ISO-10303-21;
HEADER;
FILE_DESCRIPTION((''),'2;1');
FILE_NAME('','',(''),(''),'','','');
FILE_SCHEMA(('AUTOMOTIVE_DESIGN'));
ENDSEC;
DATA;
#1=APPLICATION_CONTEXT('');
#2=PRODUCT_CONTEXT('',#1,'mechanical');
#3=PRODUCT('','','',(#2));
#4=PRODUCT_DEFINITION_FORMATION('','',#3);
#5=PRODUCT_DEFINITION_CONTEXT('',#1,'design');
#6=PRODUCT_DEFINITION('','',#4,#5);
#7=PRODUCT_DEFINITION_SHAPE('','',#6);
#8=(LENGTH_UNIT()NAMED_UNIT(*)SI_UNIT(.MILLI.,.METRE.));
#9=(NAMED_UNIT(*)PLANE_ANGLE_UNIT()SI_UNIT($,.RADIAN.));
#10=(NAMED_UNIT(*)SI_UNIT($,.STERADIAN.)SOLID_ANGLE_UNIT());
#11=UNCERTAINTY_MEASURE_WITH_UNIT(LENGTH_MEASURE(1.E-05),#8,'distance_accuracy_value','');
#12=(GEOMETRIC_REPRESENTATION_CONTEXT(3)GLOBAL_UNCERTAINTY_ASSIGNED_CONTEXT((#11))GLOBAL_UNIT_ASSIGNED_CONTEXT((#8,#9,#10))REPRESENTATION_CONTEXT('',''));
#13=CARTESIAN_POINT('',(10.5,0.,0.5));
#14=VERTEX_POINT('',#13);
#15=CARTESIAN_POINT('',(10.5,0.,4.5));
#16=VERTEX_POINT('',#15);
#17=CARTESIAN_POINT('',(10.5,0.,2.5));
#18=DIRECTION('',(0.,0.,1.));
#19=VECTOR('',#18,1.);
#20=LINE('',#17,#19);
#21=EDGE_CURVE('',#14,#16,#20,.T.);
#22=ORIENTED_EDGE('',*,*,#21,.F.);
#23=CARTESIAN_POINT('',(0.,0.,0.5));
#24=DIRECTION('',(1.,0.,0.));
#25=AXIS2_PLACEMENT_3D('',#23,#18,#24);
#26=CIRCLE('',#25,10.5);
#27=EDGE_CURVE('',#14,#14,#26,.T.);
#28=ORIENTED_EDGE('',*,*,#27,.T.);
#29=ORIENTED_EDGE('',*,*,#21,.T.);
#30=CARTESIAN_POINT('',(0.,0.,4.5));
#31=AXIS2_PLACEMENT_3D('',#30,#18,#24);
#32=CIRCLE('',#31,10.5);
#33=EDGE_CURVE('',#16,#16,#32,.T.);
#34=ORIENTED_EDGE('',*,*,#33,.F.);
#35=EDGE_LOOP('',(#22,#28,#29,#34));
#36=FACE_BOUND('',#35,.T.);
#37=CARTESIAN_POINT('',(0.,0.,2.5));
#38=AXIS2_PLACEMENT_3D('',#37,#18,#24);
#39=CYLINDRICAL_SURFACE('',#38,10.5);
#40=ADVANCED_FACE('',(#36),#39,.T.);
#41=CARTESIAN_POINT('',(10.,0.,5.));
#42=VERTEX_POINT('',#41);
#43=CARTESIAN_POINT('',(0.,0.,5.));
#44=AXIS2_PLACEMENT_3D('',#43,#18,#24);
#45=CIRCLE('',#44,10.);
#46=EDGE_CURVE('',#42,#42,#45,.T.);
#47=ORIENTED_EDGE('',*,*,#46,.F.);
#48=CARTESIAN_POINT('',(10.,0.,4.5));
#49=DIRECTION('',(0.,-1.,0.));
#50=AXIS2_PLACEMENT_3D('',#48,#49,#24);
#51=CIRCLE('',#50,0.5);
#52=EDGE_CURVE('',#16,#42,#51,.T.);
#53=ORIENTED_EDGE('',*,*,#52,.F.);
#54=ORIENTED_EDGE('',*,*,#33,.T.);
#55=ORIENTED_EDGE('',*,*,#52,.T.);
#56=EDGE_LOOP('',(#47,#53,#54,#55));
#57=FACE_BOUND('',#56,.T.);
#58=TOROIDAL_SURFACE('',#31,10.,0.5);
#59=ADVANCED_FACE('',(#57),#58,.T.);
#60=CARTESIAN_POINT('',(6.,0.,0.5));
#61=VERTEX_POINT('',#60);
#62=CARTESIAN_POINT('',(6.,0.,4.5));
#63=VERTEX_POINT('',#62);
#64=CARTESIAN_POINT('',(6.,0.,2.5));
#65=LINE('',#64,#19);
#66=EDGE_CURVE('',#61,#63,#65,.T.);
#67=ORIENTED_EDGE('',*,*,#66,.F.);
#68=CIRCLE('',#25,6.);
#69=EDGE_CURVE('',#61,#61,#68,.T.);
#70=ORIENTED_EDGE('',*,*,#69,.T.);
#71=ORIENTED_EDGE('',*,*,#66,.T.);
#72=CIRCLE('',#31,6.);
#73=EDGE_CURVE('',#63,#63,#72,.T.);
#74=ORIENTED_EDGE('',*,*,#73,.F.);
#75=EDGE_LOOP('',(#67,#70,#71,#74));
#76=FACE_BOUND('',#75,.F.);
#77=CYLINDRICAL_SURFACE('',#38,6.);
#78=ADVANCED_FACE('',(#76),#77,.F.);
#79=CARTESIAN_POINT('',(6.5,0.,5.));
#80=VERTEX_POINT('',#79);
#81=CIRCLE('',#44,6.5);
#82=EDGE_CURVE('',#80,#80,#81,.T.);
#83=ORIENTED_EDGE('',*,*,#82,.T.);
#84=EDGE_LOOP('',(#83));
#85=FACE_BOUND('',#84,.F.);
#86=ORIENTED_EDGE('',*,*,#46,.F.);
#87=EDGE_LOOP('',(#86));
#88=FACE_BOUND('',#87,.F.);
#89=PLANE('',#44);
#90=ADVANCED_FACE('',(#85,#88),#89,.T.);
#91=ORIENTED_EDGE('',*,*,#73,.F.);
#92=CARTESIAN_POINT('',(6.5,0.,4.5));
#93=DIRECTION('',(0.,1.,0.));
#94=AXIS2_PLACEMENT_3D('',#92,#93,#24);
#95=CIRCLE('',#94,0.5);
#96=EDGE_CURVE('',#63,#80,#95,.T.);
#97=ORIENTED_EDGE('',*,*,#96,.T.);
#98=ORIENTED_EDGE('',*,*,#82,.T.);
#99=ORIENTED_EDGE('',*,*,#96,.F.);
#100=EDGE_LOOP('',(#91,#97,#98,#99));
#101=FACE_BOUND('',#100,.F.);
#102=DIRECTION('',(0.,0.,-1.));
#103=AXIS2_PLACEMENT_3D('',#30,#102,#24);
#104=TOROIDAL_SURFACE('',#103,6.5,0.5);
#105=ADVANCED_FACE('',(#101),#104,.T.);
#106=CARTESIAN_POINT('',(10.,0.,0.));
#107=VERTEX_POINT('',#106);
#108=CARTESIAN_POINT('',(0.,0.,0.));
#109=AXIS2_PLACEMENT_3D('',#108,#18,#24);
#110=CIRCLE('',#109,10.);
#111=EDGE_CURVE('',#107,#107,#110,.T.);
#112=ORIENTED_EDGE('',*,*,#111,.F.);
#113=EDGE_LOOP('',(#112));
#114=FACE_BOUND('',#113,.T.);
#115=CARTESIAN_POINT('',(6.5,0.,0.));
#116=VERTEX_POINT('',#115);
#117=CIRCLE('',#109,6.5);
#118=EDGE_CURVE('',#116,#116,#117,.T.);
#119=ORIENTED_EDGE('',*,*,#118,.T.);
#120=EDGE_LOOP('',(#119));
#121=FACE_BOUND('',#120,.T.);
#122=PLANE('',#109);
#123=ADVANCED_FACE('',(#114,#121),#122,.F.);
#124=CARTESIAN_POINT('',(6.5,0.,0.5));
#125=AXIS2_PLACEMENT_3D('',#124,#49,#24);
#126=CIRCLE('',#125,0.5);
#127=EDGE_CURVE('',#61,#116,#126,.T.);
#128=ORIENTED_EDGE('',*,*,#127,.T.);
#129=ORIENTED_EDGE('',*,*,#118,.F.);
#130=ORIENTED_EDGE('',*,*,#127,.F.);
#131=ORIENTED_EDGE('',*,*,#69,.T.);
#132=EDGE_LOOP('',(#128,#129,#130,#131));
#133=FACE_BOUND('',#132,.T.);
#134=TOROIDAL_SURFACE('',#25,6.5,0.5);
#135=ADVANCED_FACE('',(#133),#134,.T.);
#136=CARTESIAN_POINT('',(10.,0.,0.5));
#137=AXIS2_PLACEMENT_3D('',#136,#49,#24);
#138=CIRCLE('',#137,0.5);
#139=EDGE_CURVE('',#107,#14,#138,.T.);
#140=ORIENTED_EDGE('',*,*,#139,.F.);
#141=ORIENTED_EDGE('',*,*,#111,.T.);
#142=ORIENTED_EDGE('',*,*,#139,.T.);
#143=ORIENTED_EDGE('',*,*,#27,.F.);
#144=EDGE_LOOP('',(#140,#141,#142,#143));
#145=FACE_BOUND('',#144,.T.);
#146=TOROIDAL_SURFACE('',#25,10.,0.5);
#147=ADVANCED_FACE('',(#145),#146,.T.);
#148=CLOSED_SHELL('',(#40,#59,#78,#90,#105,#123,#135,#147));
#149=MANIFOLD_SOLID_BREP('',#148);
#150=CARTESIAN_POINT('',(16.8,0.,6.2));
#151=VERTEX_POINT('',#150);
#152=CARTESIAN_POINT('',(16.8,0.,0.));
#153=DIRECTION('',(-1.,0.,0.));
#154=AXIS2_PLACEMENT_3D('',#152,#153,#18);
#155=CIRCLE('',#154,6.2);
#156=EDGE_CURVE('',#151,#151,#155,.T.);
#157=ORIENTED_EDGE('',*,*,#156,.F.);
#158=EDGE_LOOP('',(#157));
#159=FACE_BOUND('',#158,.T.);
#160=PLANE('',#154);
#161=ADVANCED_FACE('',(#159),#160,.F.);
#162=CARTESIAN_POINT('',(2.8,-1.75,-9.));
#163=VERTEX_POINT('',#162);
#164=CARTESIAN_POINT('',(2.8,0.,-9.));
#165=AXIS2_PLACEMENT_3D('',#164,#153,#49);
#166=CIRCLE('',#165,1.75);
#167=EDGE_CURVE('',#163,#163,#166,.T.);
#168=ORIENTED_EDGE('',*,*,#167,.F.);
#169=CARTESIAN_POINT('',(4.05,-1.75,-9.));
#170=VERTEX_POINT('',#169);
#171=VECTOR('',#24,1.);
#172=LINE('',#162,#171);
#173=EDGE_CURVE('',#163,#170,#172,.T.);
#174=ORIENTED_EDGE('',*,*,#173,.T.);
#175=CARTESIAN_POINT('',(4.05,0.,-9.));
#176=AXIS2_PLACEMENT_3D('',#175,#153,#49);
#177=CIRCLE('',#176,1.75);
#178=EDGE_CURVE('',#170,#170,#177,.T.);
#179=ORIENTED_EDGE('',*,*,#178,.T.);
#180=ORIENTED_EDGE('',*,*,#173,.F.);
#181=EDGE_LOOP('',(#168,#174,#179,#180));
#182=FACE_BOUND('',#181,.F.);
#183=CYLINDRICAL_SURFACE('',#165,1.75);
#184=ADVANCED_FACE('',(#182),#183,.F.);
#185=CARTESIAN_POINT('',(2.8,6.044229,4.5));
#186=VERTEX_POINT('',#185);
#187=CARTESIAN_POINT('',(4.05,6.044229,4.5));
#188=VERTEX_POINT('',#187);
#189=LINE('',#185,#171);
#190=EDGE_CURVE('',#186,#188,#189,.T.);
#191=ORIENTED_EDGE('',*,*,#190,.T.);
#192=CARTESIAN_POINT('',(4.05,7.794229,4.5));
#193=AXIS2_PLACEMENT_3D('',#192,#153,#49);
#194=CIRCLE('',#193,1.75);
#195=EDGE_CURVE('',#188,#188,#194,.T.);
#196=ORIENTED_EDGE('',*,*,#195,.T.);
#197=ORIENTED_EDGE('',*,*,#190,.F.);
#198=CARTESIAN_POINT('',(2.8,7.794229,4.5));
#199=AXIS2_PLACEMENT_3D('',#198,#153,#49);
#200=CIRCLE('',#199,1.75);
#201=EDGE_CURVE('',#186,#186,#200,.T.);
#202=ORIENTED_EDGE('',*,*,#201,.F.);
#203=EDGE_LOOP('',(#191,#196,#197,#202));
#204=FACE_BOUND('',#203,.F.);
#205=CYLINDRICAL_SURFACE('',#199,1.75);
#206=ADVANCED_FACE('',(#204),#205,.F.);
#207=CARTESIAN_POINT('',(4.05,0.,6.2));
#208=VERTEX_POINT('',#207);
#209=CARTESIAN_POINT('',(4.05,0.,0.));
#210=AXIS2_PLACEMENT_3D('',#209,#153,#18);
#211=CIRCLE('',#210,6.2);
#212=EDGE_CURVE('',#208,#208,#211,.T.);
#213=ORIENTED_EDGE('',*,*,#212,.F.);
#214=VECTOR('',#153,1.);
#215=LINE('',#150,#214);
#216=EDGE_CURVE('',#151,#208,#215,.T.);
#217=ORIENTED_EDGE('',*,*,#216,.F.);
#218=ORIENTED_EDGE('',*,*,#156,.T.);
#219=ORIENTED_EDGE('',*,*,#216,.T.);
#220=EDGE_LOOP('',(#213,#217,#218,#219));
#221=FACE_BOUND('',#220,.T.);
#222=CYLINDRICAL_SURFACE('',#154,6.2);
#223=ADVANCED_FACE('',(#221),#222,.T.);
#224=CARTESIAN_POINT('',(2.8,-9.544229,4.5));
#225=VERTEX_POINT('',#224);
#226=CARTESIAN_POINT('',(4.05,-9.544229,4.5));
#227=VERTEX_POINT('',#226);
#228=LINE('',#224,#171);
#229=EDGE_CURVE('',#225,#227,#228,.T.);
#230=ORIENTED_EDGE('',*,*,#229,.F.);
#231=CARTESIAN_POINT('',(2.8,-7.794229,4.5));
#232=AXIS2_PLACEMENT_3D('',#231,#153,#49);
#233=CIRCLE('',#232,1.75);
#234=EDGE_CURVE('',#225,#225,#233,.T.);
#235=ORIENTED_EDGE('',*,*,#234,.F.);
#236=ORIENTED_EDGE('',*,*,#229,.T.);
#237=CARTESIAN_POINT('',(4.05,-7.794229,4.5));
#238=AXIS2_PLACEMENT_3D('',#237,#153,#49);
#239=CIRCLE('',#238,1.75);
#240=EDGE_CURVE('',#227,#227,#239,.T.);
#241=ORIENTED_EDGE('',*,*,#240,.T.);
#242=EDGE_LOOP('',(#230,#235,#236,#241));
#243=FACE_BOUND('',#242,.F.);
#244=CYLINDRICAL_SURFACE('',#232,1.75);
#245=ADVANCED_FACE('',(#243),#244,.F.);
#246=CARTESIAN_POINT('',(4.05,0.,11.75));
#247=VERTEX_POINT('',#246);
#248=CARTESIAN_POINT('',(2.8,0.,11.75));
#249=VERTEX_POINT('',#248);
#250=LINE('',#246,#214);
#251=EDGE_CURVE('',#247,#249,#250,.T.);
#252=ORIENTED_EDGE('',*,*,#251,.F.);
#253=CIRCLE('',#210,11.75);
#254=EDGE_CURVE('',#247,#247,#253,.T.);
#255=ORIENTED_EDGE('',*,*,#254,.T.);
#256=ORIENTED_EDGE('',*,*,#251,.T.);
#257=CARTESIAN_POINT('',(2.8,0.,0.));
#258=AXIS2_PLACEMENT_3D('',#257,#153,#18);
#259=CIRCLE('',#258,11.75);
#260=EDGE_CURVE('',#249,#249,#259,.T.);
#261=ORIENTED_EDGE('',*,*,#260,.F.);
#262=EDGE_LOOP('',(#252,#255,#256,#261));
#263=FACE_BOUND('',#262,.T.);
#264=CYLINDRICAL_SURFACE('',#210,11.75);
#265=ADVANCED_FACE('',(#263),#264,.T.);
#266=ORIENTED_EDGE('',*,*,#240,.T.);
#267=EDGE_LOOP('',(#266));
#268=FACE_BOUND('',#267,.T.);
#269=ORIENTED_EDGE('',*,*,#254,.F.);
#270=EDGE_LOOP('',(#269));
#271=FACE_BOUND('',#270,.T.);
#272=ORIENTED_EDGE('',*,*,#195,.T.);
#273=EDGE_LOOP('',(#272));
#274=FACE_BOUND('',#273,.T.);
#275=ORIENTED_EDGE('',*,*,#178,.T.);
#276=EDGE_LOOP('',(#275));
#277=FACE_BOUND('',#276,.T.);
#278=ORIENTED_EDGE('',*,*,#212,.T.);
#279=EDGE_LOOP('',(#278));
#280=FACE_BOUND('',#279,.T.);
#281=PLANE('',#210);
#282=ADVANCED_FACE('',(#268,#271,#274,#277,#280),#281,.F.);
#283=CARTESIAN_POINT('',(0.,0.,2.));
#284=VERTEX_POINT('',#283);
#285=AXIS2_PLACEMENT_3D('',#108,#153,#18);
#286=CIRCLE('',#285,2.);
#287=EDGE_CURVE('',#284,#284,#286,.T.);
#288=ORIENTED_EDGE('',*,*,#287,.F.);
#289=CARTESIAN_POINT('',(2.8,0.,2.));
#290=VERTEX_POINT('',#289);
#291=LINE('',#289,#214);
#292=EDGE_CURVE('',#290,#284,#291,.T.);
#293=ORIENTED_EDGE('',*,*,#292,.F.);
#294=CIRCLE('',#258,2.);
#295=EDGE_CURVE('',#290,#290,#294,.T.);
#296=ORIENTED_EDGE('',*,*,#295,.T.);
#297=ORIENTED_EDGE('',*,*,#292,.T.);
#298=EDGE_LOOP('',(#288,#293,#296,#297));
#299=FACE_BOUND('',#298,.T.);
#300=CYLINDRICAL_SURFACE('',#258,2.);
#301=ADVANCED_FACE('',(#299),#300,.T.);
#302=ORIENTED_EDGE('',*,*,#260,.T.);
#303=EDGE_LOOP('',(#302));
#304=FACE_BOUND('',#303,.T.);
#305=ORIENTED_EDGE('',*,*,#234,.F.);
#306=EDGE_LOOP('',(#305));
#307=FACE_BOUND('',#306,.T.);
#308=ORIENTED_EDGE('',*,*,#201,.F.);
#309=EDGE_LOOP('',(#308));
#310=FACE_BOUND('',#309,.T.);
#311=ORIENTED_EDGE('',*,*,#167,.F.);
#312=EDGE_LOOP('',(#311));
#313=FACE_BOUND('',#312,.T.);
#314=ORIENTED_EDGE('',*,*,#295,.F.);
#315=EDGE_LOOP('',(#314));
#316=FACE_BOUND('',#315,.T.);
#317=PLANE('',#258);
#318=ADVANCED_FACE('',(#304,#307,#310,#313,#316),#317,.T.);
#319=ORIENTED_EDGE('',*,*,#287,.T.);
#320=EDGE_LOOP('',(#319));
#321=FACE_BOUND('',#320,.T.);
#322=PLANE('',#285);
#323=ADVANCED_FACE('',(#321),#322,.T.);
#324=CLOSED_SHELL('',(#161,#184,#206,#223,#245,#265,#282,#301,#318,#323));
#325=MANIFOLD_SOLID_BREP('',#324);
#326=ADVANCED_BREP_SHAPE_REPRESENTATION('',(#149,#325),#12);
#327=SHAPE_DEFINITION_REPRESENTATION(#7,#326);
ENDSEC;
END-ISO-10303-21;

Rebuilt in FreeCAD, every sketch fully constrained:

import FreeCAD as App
import Part
import Sketcher

V = App.Vector


def edges_at(feature, points):
    """Names of the edges that pass closest to the given points."""
    edges = feature.Shape.Edges
    near = lambda p: min(range(len(edges)), key=lambda i: edges[i].distToShape(Part.Vertex(*p))[0])
    return sorted({f"Edge{near(p) + 1}" for p in points})

doc = App.newDocument("Part")
body = doc.addObject("PartDesign::Body", "Body")

# Sketch on XZ plane
sketch1 = body.newObject("Sketcher::SketchObject", "Sketch")
sketch1.AttachmentSupport = (doc.getObject("XZ_Plane"), [""])
sketch1.MapMode = "FlatFace"
sketch1.addGeometry(Part.LineSegment(V(2.8, 11.8, 0), V(2.8, 2, 0)), False)
sketch1.addGeometry(Part.LineSegment(V(2.8, 2, 0), V(0, 2, 0)), False)
sketch1.addGeometry(Part.LineSegment(V(0, 2, 0), V(0, 0, 0)), False)
sketch1.addGeometry(Part.LineSegment(V(0, 0, 0), V(16.8, 0, 0)), False)
sketch1.addGeometry(Part.LineSegment(V(16.8, 0, 0), V(16.8, 6.2, 0)), False)
sketch1.addGeometry(Part.LineSegment(V(16.8, 6.2, 0), V(4, 6.2, 0)), False)
sketch1.addGeometry(Part.LineSegment(V(4, 6.2, 0), V(4, 11.8, 0)), False)
sketch1.addGeometry(Part.LineSegment(V(4, 11.8, 0), V(2.8, 11.8, 0)), False)
sketch1.addConstraint(Sketcher.Constraint("Coincident", 0, 2, 1, 1))
sketch1.addConstraint(Sketcher.Constraint("Coincident", 1, 2, 2, 1))
sketch1.addConstraint(Sketcher.Constraint("Coincident", 2, 2, 3, 1))
sketch1.addConstraint(Sketcher.Constraint("Coincident", 3, 2, 4, 1))
sketch1.addConstraint(Sketcher.Constraint("Coincident", 4, 2, 5, 1))
sketch1.addConstraint(Sketcher.Constraint("Coincident", 5, 2, 6, 1))
sketch1.addConstraint(Sketcher.Constraint("Coincident", 6, 2, 7, 1))
sketch1.addConstraint(Sketcher.Constraint("Coincident", 7, 2, 0, 1))
sketch1.addConstraint(Sketcher.Constraint("Vertical", 0))
sketch1.addConstraint(Sketcher.Constraint("Horizontal", 1))
sketch1.addConstraint(Sketcher.Constraint("Vertical", 2))
sketch1.addConstraint(Sketcher.Constraint("Horizontal", 3))
sketch1.addConstraint(Sketcher.Constraint("Vertical", 4))
sketch1.addConstraint(Sketcher.Constraint("Horizontal", 5))
sketch1.addConstraint(Sketcher.Constraint("Vertical", 6))
sketch1.addConstraint(Sketcher.Constraint("Horizontal", 7))
sketch1.addConstraint(Sketcher.Constraint("Coincident", 2, 2, -1, 1))
sketch1.addConstraint(Sketcher.Constraint("DistanceY", 2, 2, 2, 1, 2.0))
sketch1.addConstraint(Sketcher.Constraint("DistanceX", 1, 2, 1, 1, 2.8))
sketch1.addConstraint(Sketcher.Constraint("DistanceX", 3, 1, 3, 2, 16.8))
sketch1.addConstraint(Sketcher.Constraint("DistanceY", 4, 1, 4, 2, 6.2))
sketch1.addConstraint(Sketcher.Constraint("DistanceX", 5, 2, 5, 1, 12.75))
sketch1.addConstraint(Sketcher.Constraint("DistanceY", 0, 2, 0, 1, 9.75))
revolution = body.newObject("PartDesign::Revolution", "Revolution")
revolution.Profile = sketch1
revolution.ReferenceAxis = (sketch1, ["H_Axis"])
revolution.Angle = 360

# Sketch on YZ plane
sketch2 = body.newObject("Sketcher::SketchObject", "Sketch001")
sketch2.AttachmentSupport = (doc.getObject("YZ_Plane"), [""])
sketch2.MapMode = "FlatFace"
sketch2.AttachmentOffset = App.Placement(V(0, 0, 2.8), App.Rotation())
sketch2.addGeometry(Part.Circle(V(7.8, 4.5, 0), V(0, 0, 1), 1.8), False)
sketch2.addGeometry(Part.Circle(V(-7.8, 4.5, 0), V(0, 0, 1), 1.8), False)
sketch2.addGeometry(Part.Circle(V(0, -9, 0), V(0, 0, 1), 1.8), False)
sketch2.addConstraint(Sketcher.Constraint("Equal", 0, 1))
sketch2.addConstraint(Sketcher.Constraint("Equal", 1, 2))
sketch2.addConstraint(Sketcher.Constraint("Symmetric", 0, 3, 1, 3, -2))
sketch2.addConstraint(Sketcher.Constraint("PointOnObject", 2, 3, -2))
sketch2.addConstraint(Sketcher.Constraint("Diameter", 0, 3.5))
sketch2.addConstraint(Sketcher.Constraint("DistanceY", 2, 3, -1, 1, 9.0))
sketch2.addConstraint(Sketcher.Constraint("DistanceY", -1, 1, 0, 3, 4.5))
sketch2.addConstraint(Sketcher.Constraint("DistanceX", -1, 1, 0, 3, 7.794229))
pocket1 = body.newObject("PartDesign::Pocket", "Pocket")
pocket1.Profile = sketch2
pocket1.Type = "ThroughAll"
pocket1.Reversed = True
body2 = doc.addObject("PartDesign::Body", "Body001")

# Sketch on XZ plane
sketch3 = body2.newObject("Sketcher::SketchObject", "Sketch002")
sketch3.AttachmentSupport = (doc.getObject("XZ_Plane001"), [""])
sketch3.MapMode = "FlatFace"
sketch3.addGeometry(Part.LineSegment(V(6, 5, 0), V(6, 0, 0)), False)
sketch3.addGeometry(Part.LineSegment(V(6, 0, 0), V(10.5, 0, 0)), False)
sketch3.addGeometry(Part.LineSegment(V(10.5, 0, 0), V(10.5, 5, 0)), False)
sketch3.addGeometry(Part.LineSegment(V(10.5, 5, 0), V(6, 5, 0)), False)
sketch3.addConstraint(Sketcher.Constraint("Coincident", 0, 2, 1, 1))
sketch3.addConstraint(Sketcher.Constraint("Coincident", 1, 2, 2, 1))
sketch3.addConstraint(Sketcher.Constraint("Coincident", 2, 2, 3, 1))
sketch3.addConstraint(Sketcher.Constraint("Coincident", 3, 2, 0, 1))
sketch3.addConstraint(Sketcher.Constraint("Vertical", 0))
sketch3.addConstraint(Sketcher.Constraint("Horizontal", 1))
sketch3.addConstraint(Sketcher.Constraint("Vertical", 2))
sketch3.addConstraint(Sketcher.Constraint("Horizontal", 3))
sketch3.addConstraint(Sketcher.Constraint("PointOnObject", 0, 2, -1))
sketch3.addConstraint(Sketcher.Constraint("DistanceY", 0, 2, 0, 1, 5.0))
sketch3.addConstraint(Sketcher.Constraint("DistanceX", 1, 1, 1, 2, 4.5))
sketch3.addConstraint(Sketcher.Constraint("DistanceX", -1, 1, 0, 2, 6.0))
revolution2 = body2.newObject("PartDesign::Revolution", "Revolution001")
revolution2.Profile = sketch3
revolution2.ReferenceAxis = (sketch3, ["V_Axis"])
revolution2.Angle = 360
doc.recompute()

fillet = body2.newObject("PartDesign::Fillet", "Fillet")
fillet.Base = (revolution2, edges_at(revolution2, [
    (-10.5, 0, 5),
    (-6, 0, 5),
    (-6, 0, 0),
    (-10.5, 0, 0),
]))
fillet.Radius = 0.5

doc.recompute()
